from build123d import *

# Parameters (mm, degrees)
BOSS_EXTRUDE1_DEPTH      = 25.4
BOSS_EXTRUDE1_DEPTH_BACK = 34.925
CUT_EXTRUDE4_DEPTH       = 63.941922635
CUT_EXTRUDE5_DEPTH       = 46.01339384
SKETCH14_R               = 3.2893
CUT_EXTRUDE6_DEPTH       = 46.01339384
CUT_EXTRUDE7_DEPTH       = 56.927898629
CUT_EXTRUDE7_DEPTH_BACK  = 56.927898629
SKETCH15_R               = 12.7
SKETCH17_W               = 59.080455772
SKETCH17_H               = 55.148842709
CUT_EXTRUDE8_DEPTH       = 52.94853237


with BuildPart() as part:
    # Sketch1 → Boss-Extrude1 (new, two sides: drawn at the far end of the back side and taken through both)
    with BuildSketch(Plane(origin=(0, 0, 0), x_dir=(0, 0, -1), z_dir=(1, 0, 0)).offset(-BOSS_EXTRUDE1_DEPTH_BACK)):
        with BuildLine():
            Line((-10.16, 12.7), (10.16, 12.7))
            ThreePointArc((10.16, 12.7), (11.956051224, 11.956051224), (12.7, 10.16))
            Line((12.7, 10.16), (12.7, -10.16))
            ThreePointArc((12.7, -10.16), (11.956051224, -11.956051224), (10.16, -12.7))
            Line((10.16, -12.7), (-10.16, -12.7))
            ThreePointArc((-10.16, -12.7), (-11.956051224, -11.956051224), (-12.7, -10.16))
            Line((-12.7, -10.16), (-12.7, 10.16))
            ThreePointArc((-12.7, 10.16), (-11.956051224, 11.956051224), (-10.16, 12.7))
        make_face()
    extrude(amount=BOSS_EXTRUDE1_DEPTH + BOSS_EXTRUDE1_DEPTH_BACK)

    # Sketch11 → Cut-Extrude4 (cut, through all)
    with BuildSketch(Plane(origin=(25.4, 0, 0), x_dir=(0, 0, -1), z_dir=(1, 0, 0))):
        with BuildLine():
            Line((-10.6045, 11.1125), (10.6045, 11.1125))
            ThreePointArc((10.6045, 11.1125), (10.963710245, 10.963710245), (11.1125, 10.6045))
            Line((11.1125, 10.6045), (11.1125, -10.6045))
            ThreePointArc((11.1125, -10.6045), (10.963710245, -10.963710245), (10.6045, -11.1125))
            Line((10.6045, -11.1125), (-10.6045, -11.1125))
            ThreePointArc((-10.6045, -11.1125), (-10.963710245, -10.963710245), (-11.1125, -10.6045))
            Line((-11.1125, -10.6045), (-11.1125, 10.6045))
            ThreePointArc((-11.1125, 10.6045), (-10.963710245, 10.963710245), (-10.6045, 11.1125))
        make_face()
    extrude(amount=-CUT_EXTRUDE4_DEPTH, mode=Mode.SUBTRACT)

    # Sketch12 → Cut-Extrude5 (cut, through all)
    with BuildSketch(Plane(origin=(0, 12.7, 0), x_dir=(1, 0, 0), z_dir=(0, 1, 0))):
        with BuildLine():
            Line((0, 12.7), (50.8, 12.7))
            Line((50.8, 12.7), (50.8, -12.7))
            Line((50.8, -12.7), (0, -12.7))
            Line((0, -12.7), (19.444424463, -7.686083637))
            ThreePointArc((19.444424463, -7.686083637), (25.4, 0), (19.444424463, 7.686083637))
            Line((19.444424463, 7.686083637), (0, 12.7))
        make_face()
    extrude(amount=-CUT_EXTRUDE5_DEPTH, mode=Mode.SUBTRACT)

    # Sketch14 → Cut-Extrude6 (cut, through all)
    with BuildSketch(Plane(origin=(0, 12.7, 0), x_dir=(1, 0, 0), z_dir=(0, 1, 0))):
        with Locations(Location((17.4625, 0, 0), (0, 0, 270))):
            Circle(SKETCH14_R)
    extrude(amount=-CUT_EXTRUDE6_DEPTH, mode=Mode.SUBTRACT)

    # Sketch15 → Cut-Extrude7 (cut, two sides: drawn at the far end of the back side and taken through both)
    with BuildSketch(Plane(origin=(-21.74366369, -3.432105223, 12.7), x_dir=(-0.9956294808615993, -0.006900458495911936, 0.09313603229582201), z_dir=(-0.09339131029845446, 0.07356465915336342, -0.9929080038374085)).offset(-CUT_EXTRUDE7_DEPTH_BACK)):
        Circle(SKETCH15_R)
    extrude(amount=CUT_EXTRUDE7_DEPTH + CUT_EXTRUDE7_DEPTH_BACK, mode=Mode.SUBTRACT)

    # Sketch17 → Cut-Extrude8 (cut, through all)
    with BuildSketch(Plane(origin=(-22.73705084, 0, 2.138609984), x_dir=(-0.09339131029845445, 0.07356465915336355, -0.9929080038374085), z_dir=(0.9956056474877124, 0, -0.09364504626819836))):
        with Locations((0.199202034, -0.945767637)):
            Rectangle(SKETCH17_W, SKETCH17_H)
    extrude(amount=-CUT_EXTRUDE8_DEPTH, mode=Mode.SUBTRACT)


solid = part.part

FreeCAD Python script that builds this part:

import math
import FreeCAD as App
import Part
import Sketcher
from FreeCAD import Vector
Q = App.Units.Quantity


def add_polygon(sketch, points):
    """Adds a closed chain of lines whose ends are joined by coincident constraints."""
    first, n = sketch.GeometryCount, len(points)
    for a, b in zip(points, points[1:] + points[:1]):
        sketch.addGeometry(Part.LineSegment(App.Vector(*a, 0), App.Vector(*b, 0)), False)
    for i in range(n):
        sketch.addConstraint(Sketcher.Constraint("Coincident", first + i, 2, first + (i + 1) % n, 1))

doc = App.newDocument("Part")
body = doc.addObject("PartDesign::Body", "Body")

sketch1 = body.newObject("Sketcher::SketchObject", "Sketch")
sketch1.AttachmentSupport = (doc.getObject("YZ_Plane"), [""])
sketch1.MapMode = "FlatFace"
sketch1.addGeometry([
    Part.LineSegment(Vector(12.7, -10.2, 0), Vector(12.7, 10.2, 0)),
    Part.ArcOfCircle(Part.Circle(Vector(10.2, 10.2, 0), Vector(0, 0, 1), 2.5), math.radians(0), math.radians(90)),
    Part.LineSegment(Vector(10.2, 12.7, 0), Vector(-10.2, 12.7, 0)),
    Part.ArcOfCircle(Part.Circle(Vector(-10.2, 10.2, 0), Vector(0, 0, 1), 2.5), math.radians(90), math.radians(180)),
    Part.LineSegment(Vector(-12.7, 10.2, 0), Vector(-12.7, -10.2, 0)),
    Part.ArcOfCircle(Part.Circle(Vector(-10.2, -10.2, 0), Vector(0, 0, 1), 2.5), math.radians(-180), math.radians(-90)),
    Part.LineSegment(Vector(-10.2, -12.7, 0), Vector(10.2, -12.7, 0)),
    Part.ArcOfCircle(Part.Circle(Vector(10.2, -10.2, 0), Vector(0, 0, 1), 2.5), math.radians(-90), math.radians(0)),
], False)
sketch1.addConstraint([
    Sketcher.Constraint("Tangent", 0, 2, 1, 1),
    Sketcher.Constraint("Tangent", 1, 2, 2, 1),
    Sketcher.Constraint("Tangent", 2, 2, 3, 1),
    Sketcher.Constraint("Tangent", 3, 2, 4, 1),
    Sketcher.Constraint("Tangent", 4, 2, 5, 1),
    Sketcher.Constraint("Tangent", 5, 2, 6, 1),
    Sketcher.Constraint("Tangent", 6, 2, 7, 1),
    Sketcher.Constraint("Tangent", 7, 2, 0, 1),
    Sketcher.Constraint("Vertical", 0),
    Sketcher.Constraint("Horizontal", 2),
    Sketcher.Constraint("Vertical", 4),
    Sketcher.Constraint("Horizontal", 6),
    Sketcher.Constraint("Equal", 1, 3),
    Sketcher.Constraint("Equal", 3, 5),
    Sketcher.Constraint("Equal", 5, 7),
    Sketcher.Constraint("Symmetric", 1, 3, 5, 3, -1, 1),
    Sketcher.Constraint("Equal", 6, 0),
    Sketcher.Constraint("Radius", 1, Q("0.1 in")),
    Sketcher.Constraint("DistanceX", 2, 2, 2, 1, Q("0.8 in")),
])
pad1 = body.newObject("PartDesign::Pad", "Pad")
pad1.Profile = sketch1
pad1.Type = "TwoLengths"
pad1.Length = Q("1 in")
pad1.Length2 = Q("1.375 in")

sketch2 = body.newObject("Sketcher::SketchObject", "Sketch001")
sketch2.AttachmentSupport = (doc.getObject("YZ_Plane"), [""])
sketch2.MapMode = "FlatFace"
sketch2.AttachmentOffset = App.Placement(Vector(0, 0, 1 * 25.4), App.Rotation())
sketch2.addGeometry([
    Part.LineSegment(Vector(11.1, -10.6, 0), Vector(11.1, 10.6, 0)),
    Part.ArcOfCircle(Part.Circle(Vector(10.6, 10.6, 0), Vector(0, 0, 1), 0.5), math.radians(0), math.radians(90)),
    Part.LineSegment(Vector(10.6, 11.1, 0), Vector(-10.6, 11.1, 0)),
    Part.ArcOfCircle(Part.Circle(Vector(-10.6, 10.6, 0), Vector(0, 0, 1), 0.5), math.radians(90), math.radians(180)),
    Part.LineSegment(Vector(-11.1, 10.6, 0), Vector(-11.1, -10.6, 0)),
    Part.ArcOfCircle(Part.Circle(Vector(-10.6, -10.6, 0), Vector(0, 0, 1), 0.5), math.radians(180), math.radians(270)),
    Part.LineSegment(Vector(-10.6, -11.1, 0), Vector(10.6, -11.1, 0)),
    Part.ArcOfCircle(Part.Circle(Vector(10.6, -10.6, 0), Vector(0, 0, 1), 0.5), math.radians(-90), math.radians(0)),
], False)
sketch2.addConstraint([
    Sketcher.Constraint("Tangent", 0, 2, 1, 1),
    Sketcher.Constraint("Tangent", 1, 2, 2, 1),
    Sketcher.Constraint("Tangent", 2, 2, 3, 1),
    Sketcher.Constraint("Tangent", 3, 2, 4, 1),
    Sketcher.Constraint("Tangent", 4, 2, 5, 1),
    Sketcher.Constraint("Tangent", 5, 2, 6, 1),
    Sketcher.Constraint("Tangent", 6, 2, 7, 1),
    Sketcher.Constraint("Tangent", 7, 2, 0, 1),
    Sketcher.Constraint("Vertical", 0),
    Sketcher.Constraint("Horizontal", 2),
    Sketcher.Constraint("Vertical", 4),
    Sketcher.Constraint("Horizontal", 6),
    Sketcher.Constraint("Equal", 1, 3),
    Sketcher.Constraint("Equal", 3, 5),
    Sketcher.Constraint("Equal", 5, 7),
    Sketcher.Constraint("Symmetric", 1, 3, 5, 3, -1, 1),
    Sketcher.Constraint("Equal", 6, 0),
    Sketcher.Constraint("Radius", 1, Q("0.02 in")),
    Sketcher.Constraint("DistanceX", 2, 2, 2, 1, Q("0.835 in")),
])
pocket1 = body.newObject("PartDesign::Pocket", "Pocket")
pocket1.Profile = sketch2
pocket1.Type = "ThroughAll"

sketch3 = body.newObject("Sketcher::SketchObject", "Sketch002")
sketch3.AttachmentSupport = (doc.getObject("XZ_Plane"), [""])
sketch3.MapMode = "FlatFace"
sketch3.AttachmentOffset = App.Placement(Vector(0, 0, -0.5 * 25.4), App.Rotation())
sketch3.addGeometry([
    Part.LineSegment(Vector(51, -13, 0), Vector(0, -13, 0)),
    Part.LineSegment(Vector(0, -13, 0), Vector(19, -8, 0)),
    Part.ArcOfCircle(Part.Circle(Vector(17, 0, 0), Vector(0, 0, 1), 8), math.radians(-76), math.radians(76)),
    Part.LineSegment(Vector(19, 8, 0), Vector(0, 13, 0)),
    Part.LineSegment(Vector(0, 13, 0), Vector(51, 13, 0)),
    Part.LineSegment(Vector(51, 13, 0), Vector(51, -13, 0)),
], False)
sketch3.addConstraint([
    Sketcher.Constraint("Coincident", 0, 2, 1, 1),
    Sketcher.Constraint("Tangent", 1, 2, 2, 1),
    Sketcher.Constraint("Tangent", 2, 2, 3, 1),
    Sketcher.Constraint("Coincident", 3, 2, 4, 1),
    Sketcher.Constraint("Coincident", 4, 2, 5, 1),
    Sketcher.Constraint("Coincident", 5, 2, 0, 1),
    Sketcher.Constraint("Horizontal", 0),
    Sketcher.Constraint("Horizontal", 4),
    Sketcher.Constraint("Vertical", 5),
    Sketcher.Constraint("Symmetric", 0, 2, 3, 2, -1, 1),
    Sketcher.Constraint("Symmetric", 1, 2, 2, 2, -1),
    Sketcher.Constraint("DistanceX", 0, 2, 0, 1, Q("2 in")),
    Sketcher.Constraint("DistanceY", 5, 2, 5, 1, Q("1 in")),
    Sketcher.Constraint("Radius", 2, Q("0.3125 in")),
    Sketcher.Constraint("DistanceX", -1, 1, 2, 3, Q("0.6875 in")),
])
pocket2 = body.newObject("PartDesign::Pocket", "Pocket001")
pocket2.Profile = sketch3
pocket2.Type = "ThroughAll"
pocket2.Reversed = True

sketch4 = body.newObject("Sketcher::SketchObject", "Sketch003")
sketch4.AttachmentSupport = (doc.getObject("XZ_Plane"), [""])
sketch4.MapMode = "FlatFace"
sketch4.AttachmentOffset = App.Placement(Vector(0, 0, -0.5 * 25.4), App.Rotation())
sketch4.addGeometry(Part.Circle(Vector(17.5, 0, 0), Vector(0, 0, 1), 3.3), False)
sketch4.addConstraint([
    Sketcher.Constraint("PointOnObject", 0, 3, -1),
    Sketcher.Constraint("Diameter", 0, Q("0.259 in")),
    Sketcher.Constraint("DistanceX", -1, 1, 0, 3, Q("0.6875 in")),
])
pocket3 = body.newObject("PartDesign::Pocket", "Pocket002")
pocket3.Profile = sketch4
pocket3.Type = "ThroughAll"
pocket3.Reversed = True

sketch5 = body.newObject("Sketcher::SketchObject", "Sketch004")
sketch5.Placement = App.Placement(Vector(-21.743664, -3.432105, 12.7), App.Rotation(Vector(-0.995629481, -0.006900458, 0.093136032), Vector(0, 0.997266577, 0.073887586), Vector(-0.09339131, 0.073564659, -0.992908004), "ZXY"))
sketch5.addGeometry(Part.Circle(Vector(0, 0, 0), Vector(0, 0, 1), 13), False)
sketch5.addConstraint([
    Sketcher.Constraint("Coincident", 0, 3, -1, 1),
    Sketcher.Constraint("Diameter", 0, Q("1 in")),
])
pocket4 = body.newObject("PartDesign::Pocket", "Pocket003")
pocket4.Profile = sketch5
pocket4.Type = "ThroughAll"
pocket4.Midplane = True

sketch6 = body.newObject("Sketcher::SketchObject", "Sketch005")
sketch6.Placement = App.Placement(Vector(-22.737051, 0, 2.13861), App.Rotation(Vector(-0.09339131, 0.073564659, -0.992908004), Vector(0.006888966, 0.997290449, 0.07324139), Vector(0.995605647, 0, -0.093645046), "ZXY"))
add_polygon(sketch6, [(-29, 27), (-29, -29), (30, -29), (30, 27)])
sketch6.addConstraint([
    Sketcher.Constraint("Vertical", 0),
    Sketcher.Constraint("Horizontal", 1),
    Sketcher.Constraint("Vertical", 2),
    Sketcher.Constraint("Horizontal", 3),
    Sketcher.Constraint("DistanceX", 1, 1, 1, 2, Q("59.080456 mm")),
    Sketcher.Constraint("DistanceY", 0, 2, 0, 1, Q("55.148843 mm")),
    Sketcher.Constraint("DistanceY", 0, 2, -1, 1, Q("28.520189 mm")),
    Sketcher.Constraint("DistanceX", -1, 1, 1, 2, Q("29.73943 mm")),
])
pocket5 = body.newObject("PartDesign::Pocket", "Pocket004")
pocket5.Profile = sketch6
pocket5.Type = "ThroughAll"

doc.recompute()
